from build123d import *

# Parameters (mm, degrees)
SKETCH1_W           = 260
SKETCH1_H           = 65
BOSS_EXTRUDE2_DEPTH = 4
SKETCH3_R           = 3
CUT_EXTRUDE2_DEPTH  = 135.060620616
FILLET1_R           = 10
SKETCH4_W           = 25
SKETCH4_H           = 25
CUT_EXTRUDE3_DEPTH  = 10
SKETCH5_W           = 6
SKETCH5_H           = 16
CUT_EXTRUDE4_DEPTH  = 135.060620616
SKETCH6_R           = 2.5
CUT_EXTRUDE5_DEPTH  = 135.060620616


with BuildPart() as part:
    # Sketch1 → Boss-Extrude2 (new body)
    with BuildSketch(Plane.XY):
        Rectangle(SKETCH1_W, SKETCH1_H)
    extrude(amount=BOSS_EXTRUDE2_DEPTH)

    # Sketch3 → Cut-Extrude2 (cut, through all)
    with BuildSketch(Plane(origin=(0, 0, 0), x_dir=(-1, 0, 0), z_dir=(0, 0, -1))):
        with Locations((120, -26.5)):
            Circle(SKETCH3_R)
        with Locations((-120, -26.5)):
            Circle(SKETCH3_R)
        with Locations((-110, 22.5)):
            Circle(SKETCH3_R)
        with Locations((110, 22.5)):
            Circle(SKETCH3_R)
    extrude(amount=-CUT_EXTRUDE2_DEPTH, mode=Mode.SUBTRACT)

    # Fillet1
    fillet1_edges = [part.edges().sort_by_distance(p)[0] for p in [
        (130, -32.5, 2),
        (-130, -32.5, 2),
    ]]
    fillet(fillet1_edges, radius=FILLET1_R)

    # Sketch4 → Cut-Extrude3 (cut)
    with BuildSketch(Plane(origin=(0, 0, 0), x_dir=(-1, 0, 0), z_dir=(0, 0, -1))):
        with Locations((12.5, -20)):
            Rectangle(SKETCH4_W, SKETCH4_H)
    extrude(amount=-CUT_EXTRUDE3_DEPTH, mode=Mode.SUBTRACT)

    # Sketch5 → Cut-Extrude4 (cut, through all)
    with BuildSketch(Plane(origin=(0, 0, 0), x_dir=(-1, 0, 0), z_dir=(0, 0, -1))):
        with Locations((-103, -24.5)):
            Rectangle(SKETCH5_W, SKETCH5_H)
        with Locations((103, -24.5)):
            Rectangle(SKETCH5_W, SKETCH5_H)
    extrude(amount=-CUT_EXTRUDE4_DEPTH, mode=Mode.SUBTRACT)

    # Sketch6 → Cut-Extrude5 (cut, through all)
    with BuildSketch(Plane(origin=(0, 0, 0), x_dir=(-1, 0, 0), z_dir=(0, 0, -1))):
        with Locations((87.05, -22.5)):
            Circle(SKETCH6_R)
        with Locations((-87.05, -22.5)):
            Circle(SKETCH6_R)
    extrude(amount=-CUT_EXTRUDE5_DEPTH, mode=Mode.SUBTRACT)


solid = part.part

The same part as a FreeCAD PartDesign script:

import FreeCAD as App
import Part
import Sketcher
from FreeCAD import Vector
Q = App.Units.Quantity


def edges_at(feature, points):
    """Names of the edges that pass closest to the given points."""
    edges = feature.Shape.Edges
    near = lambda p: min(range(len(edges)), key=lambda i: edges[i].distToShape(Part.Vertex(*p))[0])
    return sorted({f"Edge{near(p) + 1}" for p in points})

doc = App.newDocument("Part")
body = doc.addObject("PartDesign::Body", "Body")

sketch1 = body.newObject("Sketcher::SketchObject", "Sketch")
sketch1.AttachmentSupport = (doc.getObject("XY_Plane"), [""])
sketch1.MapMode = "FlatFace"
sketch1.addGeometry([
    Part.LineSegment(Vector(-130, 32.5, 0), Vector(-130, -32.5, 0)),
    Part.LineSegment(Vector(-130, -32.5, 0), Vector(130, -32.5, 0)),
    Part.LineSegment(Vector(130, -32.5, 0), Vector(130, 32.5, 0)),
    Part.LineSegment(Vector(130, 32.5, 0), Vector(-130, 32.5, 0)),
], False)
sketch1.addConstraint([
    Sketcher.Constraint("Coincident", 0, 2, 1, 1),
    Sketcher.Constraint("Coincident", 1, 2, 2, 1),
    Sketcher.Constraint("Coincident", 2, 2, 3, 1),
    Sketcher.Constraint("Coincident", 3, 2, 0, 1),
    Sketcher.Constraint("Vertical", 0),
    Sketcher.Constraint("Horizontal", 1),
    Sketcher.Constraint("Vertical", 2),
    Sketcher.Constraint("Horizontal", 3),
    Sketcher.Constraint("Symmetric", 0, 2, 2, 2, -1, 1),
    Sketcher.Constraint("DistanceX", 1, 1, 1, 2, Q("260 mm")),
    Sketcher.Constraint("DistanceY", 0, 2, 0, 1, Q("65 mm")),
])
pad1 = body.newObject("PartDesign::Pad", "Pad")
pad1.Profile = sketch1
pad1.Length = 4

sketch2 = body.newObject("Sketcher::SketchObject", "Sketch001")
sketch2.AttachmentSupport = (doc.getObject("XY_Plane"), [""])
sketch2.MapMode = "FlatFace"
sketch2.addGeometry([
    Part.Circle(Vector(-120, -26.5, 0), Vector(0, 0, 1), 3),
    Part.Circle(Vector(120, -26.5, 0), Vector(0, 0, 1), 3),
    Part.Circle(Vector(110, 22.5, 0), Vector(0, 0, 1), 3),
    Part.Circle(Vector(-110, 22.5, 0), Vector(0, 0, 1), 3),
], False)
sketch2.addConstraint([
    Sketcher.Constraint("Equal", 0, 1),
    Sketcher.Constraint("Equal", 1, 2),
    Sketcher.Constraint("Equal", 2, 3),
    Sketcher.Constraint("Symmetric", 0, 3, 1, 3, -2),
    Sketcher.Constraint("Symmetric", 2, 3, 3, 3, -2),
    Sketcher.Constraint("Diameter", 0, Q("6 mm")),
    Sketcher.Constraint("DistanceX", 0, 3, -1, 1, Q("120 mm")),
    Sketcher.Constraint("DistanceX", -1, 1, 2, 3, Q("110 mm")),
    Sketcher.Constraint("DistanceY", 1, 3, 2, 3, Q("49 mm")),
    Sketcher.Constraint("DistanceY", 0, 3, -1, 1, Q("26.5 mm")),
])
pocket1 = body.newObject("PartDesign::Pocket", "Pocket")
pocket1.Profile = sketch2
pocket1.Type = "ThroughAll"
pocket1.Reversed = True
doc.recompute()

fillet = body.newObject("PartDesign::Fillet", "Fillet")
fillet.Base = (pocket1, edges_at(pocket1, [(130, -32.5, 2), (-130, -32.5, 2)]))
fillet.Radius = 10

sketch3 = body.newObject("Sketcher::SketchObject", "Sketch002")
sketch3.AttachmentSupport = (doc.getObject("XY_Plane"), [""])
sketch3.MapMode = "FlatFace"
sketch3.addGeometry([
    Part.LineSegment(Vector(0, -7.5, 0), Vector(0, -32.5, 0)),
    Part.LineSegment(Vector(0, -32.5, 0), Vector(-25, -32.5, 0)),
    Part.LineSegment(Vector(-25, -32.5, 0), Vector(-25, -7.5, 0)),
    Part.LineSegment(Vector(-25, -7.5, 0), Vector(0, -7.5, 0)),
], False)
sketch3.addConstraint([
    Sketcher.Constraint("Coincident", 0, 2, 1, 1),
    Sketcher.Constraint("Coincident", 1, 2, 2, 1),
    Sketcher.Constraint("Coincident", 2, 2, 3, 1),
    Sketcher.Constraint("Coincident", 3, 2, 0, 1),
    Sketcher.Constraint("Vertical", 0),
    Sketcher.Constraint("Horizontal", 1),
    Sketcher.Constraint("Vertical", 2),
    Sketcher.Constraint("Horizontal", 3),
    Sketcher.Constraint("PointOnObject", 0, 2, -2),
    Sketcher.Constraint("Equal", 3, 0),
    Sketcher.Constraint("DistanceX", 1, 2, 1, 1, Q("25 mm")),
    Sketcher.Constraint("DistanceY", 0, 2, -1, 1, Q("32.5 mm")),
])
pocket2 = body.newObject("PartDesign::Pocket", "Pocket001")
pocket2.Profile = sketch3
pocket2.Length = 10
pocket2.Reversed = True

sketch4 = body.newObject("Sketcher::SketchObject", "Sketch003")
sketch4.AttachmentSupport = (doc.getObject("XY_Plane"), [""])
sketch4.MapMode = "FlatFace"
sketch4.addGeometry([
    Part.LineSegment(Vector(106, -16.5, 0), Vector(106, -32.5, 0)),
    Part.LineSegment(Vector(106, -32.5, 0), Vector(100, -32.5, 0)),
    Part.LineSegment(Vector(100, -32.5, 0), Vector(100, -16.5, 0)),
    Part.LineSegment(Vector(100, -16.5, 0), Vector(106, -16.5, 0)),
    Part.LineSegment(Vector(-100, -16.5, 0), Vector(-100, -32.5, 0)),
    Part.LineSegment(Vector(-100, -32.5, 0), Vector(-106, -32.5, 0)),
    Part.LineSegment(Vector(-106, -32.5, 0), Vector(-106, -16.5, 0)),
    Part.LineSegment(Vector(-106, -16.5, 0), Vector(-100, -16.5, 0)),
], False)
sketch4.addConstraint([
    Sketcher.Constraint("Coincident", 0, 2, 1, 1),
    Sketcher.Constraint("Coincident", 1, 2, 2, 1),
    Sketcher.Constraint("Coincident", 2, 2, 3, 1),
    Sketcher.Constraint("Coincident", 3, 2, 0, 1),
    Sketcher.Constraint("Coincident", 4, 2, 5, 1),
    Sketcher.Constraint("Coincident", 5, 2, 6, 1),
    Sketcher.Constraint("Coincident", 6, 2, 7, 1),
    Sketcher.Constraint("Coincident", 7, 2, 4, 1),
    Sketcher.Constraint("Vertical", 0),
    Sketcher.Constraint("Horizontal", 1),
    Sketcher.Constraint("Vertical", 2),
    Sketcher.Constraint("Horizontal", 3),
    Sketcher.Constraint("Vertical", 4),
    Sketcher.Constraint("Horizontal", 5),
    Sketcher.Constraint("Vertical", 6),
    Sketcher.Constraint("Horizontal", 7),
    Sketcher.Constraint("Symmetric", 1, 2, 4, 2, -2),
    Sketcher.Constraint("Symmetric", 3, 2, 6, 2, -2),
    Sketcher.Constraint("DistanceX", 1, 2, 1, 1, Q("6 mm")),
    Sketcher.Constraint("DistanceY", 0, 2, 0, 1, Q("16 mm")),
    Sketcher.Constraint("DistanceX", -1, 1, 0, 2, Q("106 mm")),
    Sketcher.Constraint("DistanceY", 0, 2, -1, 1, Q("32.5 mm")),
])
pocket3 = body.newObject("PartDesign::Pocket", "Pocket002")
pocket3.Profile = sketch4
pocket3.Type = "ThroughAll"
pocket3.Reversed = True

sketch5 = body.newObject("Sketcher::SketchObject", "Sketch004")
sketch5.AttachmentSupport = (doc.getObject("XY_Plane"), [""])
sketch5.MapMode = "FlatFace"
sketch5.addGeometry([
    Part.Circle(Vector(-87.05, -22.5, 0), Vector(0, 0, 1), 2.5),
    Part.Circle(Vector(87.05, -22.5, 0), Vector(0, 0, 1), 2.5),
], False)
sketch5.addConstraint([
    Sketcher.Constraint("Equal", 0, 1),
    Sketcher.Constraint("Symmetric", 0, 3, 1, 3, -2),
    Sketcher.Constraint("Diameter", 0, Q("5 mm")),
    Sketcher.Constraint("DistanceY", 0, 3, -1, 1, Q("22.5 mm")),
    Sketcher.Constraint("DistanceX", 0, 3, 1, 3, Q("174.1 mm")),
])
pocket4 = body.newObject("PartDesign::Pocket", "Pocket003")
pocket4.Profile = sketch5
pocket4.Type = "ThroughAll"
pocket4.Reversed = True

doc.recompute()
